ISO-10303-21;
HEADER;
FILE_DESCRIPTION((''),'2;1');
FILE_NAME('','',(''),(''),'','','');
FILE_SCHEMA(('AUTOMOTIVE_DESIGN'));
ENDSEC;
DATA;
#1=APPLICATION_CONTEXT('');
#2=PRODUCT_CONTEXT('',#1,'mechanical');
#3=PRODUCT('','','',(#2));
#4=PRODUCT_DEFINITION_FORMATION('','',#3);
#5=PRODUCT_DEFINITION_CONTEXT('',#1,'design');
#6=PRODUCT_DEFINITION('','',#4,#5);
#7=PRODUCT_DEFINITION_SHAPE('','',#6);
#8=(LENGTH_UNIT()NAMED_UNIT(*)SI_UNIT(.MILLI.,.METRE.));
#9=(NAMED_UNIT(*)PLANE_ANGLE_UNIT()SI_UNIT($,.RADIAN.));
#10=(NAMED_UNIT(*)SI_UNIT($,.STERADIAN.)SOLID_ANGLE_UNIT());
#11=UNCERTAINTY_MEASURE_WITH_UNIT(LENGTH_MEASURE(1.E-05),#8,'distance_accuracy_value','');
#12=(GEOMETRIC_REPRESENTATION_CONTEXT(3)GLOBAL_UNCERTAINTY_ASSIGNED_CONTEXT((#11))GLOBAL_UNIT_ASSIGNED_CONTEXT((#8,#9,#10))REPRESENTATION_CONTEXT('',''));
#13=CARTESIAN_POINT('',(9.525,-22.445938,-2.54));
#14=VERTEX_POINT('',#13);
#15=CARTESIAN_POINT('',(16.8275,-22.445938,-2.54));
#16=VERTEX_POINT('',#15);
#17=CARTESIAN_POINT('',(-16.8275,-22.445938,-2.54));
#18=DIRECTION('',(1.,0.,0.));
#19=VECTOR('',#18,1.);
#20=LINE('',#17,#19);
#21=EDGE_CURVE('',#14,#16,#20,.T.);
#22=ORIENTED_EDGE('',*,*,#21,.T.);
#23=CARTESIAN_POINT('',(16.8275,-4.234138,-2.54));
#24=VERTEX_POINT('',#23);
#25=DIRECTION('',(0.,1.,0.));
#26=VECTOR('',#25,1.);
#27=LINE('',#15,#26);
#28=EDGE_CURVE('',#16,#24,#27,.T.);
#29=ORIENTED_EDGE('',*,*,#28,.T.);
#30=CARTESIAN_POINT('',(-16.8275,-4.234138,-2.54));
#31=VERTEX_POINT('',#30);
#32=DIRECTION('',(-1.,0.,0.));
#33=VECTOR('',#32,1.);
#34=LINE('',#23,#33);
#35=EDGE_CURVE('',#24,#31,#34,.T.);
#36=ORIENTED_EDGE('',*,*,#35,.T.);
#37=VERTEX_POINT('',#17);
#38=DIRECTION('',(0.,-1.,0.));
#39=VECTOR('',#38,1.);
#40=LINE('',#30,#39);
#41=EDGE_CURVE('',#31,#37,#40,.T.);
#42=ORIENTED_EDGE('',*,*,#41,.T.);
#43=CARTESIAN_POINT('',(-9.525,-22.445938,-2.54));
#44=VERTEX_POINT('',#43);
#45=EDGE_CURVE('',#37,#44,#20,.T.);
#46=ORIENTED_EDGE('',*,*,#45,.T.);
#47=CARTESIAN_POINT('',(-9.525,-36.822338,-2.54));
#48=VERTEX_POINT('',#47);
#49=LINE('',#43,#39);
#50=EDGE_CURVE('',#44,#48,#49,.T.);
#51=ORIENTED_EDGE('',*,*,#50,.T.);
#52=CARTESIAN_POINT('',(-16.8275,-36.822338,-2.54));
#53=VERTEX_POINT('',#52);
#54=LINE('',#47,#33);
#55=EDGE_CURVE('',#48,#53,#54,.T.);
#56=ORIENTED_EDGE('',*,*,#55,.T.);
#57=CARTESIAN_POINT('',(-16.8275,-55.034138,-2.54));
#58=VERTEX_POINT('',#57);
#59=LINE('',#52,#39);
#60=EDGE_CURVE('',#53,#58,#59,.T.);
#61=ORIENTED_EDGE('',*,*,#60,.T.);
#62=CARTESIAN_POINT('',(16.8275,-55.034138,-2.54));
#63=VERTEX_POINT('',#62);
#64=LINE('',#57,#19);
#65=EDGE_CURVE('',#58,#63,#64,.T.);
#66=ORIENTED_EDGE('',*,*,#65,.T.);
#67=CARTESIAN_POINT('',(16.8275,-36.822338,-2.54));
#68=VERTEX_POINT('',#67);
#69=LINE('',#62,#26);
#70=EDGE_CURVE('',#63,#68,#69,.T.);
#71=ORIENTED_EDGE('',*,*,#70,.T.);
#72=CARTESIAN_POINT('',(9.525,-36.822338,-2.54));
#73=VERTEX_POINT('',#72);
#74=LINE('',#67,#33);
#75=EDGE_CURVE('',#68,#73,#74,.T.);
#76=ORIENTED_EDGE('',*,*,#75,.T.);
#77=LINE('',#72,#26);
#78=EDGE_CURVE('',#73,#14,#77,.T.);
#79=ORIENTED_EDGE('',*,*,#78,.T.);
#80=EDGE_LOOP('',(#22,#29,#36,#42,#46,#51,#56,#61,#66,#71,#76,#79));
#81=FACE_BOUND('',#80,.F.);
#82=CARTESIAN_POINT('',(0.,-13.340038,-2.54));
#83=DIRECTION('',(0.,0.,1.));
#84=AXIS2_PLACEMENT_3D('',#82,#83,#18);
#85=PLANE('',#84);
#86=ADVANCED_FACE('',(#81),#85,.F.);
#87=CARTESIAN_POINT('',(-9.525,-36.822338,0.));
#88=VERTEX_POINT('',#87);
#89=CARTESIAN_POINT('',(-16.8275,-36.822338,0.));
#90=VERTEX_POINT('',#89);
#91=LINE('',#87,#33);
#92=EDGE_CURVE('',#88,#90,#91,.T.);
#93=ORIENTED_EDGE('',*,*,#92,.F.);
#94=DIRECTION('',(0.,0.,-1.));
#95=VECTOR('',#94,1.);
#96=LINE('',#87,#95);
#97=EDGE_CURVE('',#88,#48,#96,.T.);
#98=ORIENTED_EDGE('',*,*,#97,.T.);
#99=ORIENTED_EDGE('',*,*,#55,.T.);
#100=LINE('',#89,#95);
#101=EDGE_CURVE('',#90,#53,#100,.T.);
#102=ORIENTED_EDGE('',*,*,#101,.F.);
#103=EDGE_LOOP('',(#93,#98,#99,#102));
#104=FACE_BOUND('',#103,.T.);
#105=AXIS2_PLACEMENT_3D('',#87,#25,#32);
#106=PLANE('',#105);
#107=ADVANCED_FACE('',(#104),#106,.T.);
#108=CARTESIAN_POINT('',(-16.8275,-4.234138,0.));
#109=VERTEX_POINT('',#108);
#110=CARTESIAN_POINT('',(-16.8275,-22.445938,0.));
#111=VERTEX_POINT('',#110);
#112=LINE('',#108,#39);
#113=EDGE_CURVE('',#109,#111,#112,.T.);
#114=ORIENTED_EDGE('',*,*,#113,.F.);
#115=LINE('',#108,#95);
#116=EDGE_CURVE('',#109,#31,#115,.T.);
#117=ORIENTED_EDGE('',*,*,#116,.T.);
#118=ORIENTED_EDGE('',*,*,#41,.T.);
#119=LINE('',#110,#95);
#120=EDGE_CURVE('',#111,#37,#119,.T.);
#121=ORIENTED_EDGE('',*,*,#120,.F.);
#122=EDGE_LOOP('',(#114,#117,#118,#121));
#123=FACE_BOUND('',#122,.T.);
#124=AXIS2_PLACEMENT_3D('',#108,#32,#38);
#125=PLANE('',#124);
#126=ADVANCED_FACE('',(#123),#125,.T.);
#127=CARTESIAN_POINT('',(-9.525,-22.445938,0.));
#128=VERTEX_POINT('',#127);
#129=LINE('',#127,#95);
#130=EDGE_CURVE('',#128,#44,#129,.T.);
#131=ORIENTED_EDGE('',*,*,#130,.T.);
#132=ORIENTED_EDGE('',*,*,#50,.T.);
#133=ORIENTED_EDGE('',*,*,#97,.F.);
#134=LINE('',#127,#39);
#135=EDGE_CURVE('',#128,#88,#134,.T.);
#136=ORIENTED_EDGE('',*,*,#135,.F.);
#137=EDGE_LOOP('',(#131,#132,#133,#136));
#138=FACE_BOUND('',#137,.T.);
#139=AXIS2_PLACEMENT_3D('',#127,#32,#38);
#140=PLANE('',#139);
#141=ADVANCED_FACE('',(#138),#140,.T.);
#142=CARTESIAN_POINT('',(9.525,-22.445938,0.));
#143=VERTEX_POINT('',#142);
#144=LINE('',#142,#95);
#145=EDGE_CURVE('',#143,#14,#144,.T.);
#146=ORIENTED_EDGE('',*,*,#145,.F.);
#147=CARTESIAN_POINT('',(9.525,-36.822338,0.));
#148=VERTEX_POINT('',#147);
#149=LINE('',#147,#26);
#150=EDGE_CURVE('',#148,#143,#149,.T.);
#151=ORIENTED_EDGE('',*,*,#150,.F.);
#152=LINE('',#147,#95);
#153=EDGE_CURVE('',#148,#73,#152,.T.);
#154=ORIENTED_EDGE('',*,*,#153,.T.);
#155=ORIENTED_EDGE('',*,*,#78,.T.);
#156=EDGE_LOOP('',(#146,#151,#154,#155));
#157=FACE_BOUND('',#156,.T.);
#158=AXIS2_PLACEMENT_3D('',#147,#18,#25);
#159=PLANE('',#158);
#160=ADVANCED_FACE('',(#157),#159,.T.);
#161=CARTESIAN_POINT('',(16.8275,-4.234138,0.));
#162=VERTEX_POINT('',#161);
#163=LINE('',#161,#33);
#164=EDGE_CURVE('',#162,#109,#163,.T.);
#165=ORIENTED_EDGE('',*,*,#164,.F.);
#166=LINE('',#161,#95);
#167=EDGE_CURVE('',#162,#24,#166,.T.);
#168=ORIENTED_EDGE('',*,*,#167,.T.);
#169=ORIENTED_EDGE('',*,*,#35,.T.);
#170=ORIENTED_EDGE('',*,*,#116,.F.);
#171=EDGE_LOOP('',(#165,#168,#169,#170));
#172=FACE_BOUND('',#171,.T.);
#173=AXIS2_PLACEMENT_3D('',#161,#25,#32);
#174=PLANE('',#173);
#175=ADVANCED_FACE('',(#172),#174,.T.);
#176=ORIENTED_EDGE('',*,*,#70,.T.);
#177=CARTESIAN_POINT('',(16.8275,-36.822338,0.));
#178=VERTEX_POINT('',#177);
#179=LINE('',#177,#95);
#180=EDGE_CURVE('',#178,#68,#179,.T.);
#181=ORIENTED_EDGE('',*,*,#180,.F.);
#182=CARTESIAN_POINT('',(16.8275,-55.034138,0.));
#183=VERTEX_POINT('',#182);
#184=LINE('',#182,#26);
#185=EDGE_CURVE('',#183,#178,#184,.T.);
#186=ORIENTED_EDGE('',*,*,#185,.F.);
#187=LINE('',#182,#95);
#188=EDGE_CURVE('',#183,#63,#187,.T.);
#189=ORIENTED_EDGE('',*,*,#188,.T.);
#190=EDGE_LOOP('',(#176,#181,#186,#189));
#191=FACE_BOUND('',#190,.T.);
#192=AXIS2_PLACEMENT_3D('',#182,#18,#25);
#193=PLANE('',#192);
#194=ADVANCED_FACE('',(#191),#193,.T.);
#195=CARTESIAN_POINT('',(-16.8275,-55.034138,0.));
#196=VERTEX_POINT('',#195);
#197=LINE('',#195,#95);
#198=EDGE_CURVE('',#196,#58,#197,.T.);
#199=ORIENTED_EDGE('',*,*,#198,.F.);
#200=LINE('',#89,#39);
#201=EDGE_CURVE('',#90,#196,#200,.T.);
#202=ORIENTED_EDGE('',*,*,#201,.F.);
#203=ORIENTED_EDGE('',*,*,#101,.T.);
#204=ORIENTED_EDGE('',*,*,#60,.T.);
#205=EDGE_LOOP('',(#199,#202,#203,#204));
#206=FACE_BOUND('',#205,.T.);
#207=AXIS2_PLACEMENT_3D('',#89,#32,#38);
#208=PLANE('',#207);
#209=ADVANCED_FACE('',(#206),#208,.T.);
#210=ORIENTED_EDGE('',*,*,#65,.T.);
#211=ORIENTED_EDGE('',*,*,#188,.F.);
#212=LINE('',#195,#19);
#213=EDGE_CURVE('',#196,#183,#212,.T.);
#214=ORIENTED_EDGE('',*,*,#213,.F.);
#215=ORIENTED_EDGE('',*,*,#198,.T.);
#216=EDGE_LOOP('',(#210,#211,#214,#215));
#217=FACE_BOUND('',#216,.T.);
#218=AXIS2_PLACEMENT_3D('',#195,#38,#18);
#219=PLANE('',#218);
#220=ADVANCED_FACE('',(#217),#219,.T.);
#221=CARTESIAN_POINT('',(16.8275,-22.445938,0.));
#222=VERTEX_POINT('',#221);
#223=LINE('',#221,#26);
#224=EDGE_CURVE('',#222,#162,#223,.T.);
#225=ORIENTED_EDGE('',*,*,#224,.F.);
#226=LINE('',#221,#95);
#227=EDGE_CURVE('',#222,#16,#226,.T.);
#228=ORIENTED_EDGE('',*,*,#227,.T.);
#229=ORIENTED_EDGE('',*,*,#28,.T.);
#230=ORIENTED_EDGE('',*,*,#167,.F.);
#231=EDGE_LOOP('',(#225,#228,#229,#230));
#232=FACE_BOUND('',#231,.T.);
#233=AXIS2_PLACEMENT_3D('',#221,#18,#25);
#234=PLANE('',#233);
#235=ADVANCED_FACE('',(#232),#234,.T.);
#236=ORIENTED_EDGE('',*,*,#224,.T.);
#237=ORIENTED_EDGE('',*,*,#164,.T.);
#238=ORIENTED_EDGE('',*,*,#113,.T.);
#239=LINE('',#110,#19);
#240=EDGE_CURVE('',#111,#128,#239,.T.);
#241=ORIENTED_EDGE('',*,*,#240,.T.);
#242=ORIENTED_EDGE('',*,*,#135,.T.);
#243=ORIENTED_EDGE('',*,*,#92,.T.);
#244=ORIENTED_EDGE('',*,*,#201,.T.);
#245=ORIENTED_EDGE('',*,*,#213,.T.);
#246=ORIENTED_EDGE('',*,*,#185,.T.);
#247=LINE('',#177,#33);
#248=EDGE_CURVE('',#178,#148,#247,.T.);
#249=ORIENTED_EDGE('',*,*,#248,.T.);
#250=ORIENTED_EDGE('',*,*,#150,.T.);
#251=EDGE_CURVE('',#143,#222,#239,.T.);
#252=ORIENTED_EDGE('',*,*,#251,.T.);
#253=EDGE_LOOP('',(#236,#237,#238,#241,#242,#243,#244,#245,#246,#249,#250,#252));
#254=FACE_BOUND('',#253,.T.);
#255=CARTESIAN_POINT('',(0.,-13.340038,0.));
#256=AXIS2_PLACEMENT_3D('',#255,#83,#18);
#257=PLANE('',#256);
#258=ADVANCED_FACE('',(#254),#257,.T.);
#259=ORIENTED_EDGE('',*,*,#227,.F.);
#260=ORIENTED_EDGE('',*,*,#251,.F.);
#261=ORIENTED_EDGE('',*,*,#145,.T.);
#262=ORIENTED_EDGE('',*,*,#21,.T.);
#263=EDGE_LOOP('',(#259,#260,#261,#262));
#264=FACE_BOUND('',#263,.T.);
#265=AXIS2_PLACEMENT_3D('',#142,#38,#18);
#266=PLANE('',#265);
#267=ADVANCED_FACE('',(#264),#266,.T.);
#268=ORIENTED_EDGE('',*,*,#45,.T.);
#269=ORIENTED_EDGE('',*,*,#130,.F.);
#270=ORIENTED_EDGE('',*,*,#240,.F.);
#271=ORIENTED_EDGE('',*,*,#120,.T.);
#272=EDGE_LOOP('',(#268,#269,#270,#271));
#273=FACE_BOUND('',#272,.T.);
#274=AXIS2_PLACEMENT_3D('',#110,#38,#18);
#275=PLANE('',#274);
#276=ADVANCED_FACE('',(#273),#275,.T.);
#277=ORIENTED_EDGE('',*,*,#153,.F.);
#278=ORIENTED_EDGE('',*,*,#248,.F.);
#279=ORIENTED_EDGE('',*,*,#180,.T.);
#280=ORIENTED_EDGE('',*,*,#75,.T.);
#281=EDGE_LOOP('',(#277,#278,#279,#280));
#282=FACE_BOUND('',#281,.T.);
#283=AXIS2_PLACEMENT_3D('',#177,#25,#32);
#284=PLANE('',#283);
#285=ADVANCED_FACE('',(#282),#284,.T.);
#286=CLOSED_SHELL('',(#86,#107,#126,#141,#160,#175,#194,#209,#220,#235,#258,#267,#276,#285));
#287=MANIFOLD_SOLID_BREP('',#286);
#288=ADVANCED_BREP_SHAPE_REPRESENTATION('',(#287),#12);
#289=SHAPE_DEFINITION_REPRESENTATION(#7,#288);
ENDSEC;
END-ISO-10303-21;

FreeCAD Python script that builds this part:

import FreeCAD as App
import Part
import Sketcher
from FreeCAD import Vector
Q = App.Units.Quantity

doc = App.newDocument("Part")
params = doc.addObject("Spreadsheet::Sheet", "Params")
for row, (alias, value) in enumerate([
    ("sketch1_width", "1.325 in"),
    ("sketch1_height", "0.566 in"),
    ("sketch1_height2", "0.717 in"),
    ("pad1_length", "0.1 in"),
], start=1):
    params.set(f"A{row}", alias)
    params.set(f"B{row}", "=" + value)
    params.setAlias(f"B{row}", alias)

body = doc.addObject("PartDesign::Body", "Body")

sketch1 = doc.addObject("Sketcher::SketchObject", "Sketch")
body.addObject(sketch1)
sketch1.AttachmentSupport = (doc.XY_Plane, [""])
sketch1.MapMode = "FlatFace"
sketch1.addGeometry(Part.LineSegment(Vector(-17, -22, 0), Vector(-10, -22, 0)), False)
sketch1.addGeometry(Part.LineSegment(Vector(-10, -22, 0), Vector(-10, -37, 0)), False)
sketch1.addGeometry(Part.LineSegment(Vector(-10, -37, 0), Vector(-17, -37, 0)), False)
sketch1.addGeometry(Part.LineSegment(Vector(-17, -37, 0), Vector(-17, -55, 0)), False)
sketch1.addGeometry(Part.LineSegment(Vector(-17, -55, 0), Vector(17, -55, 0)), False)
sketch1.addGeometry(Part.LineSegment(Vector(17, -55, 0), Vector(17, -37, 0)), False)
sketch1.addGeometry(Part.LineSegment(Vector(17, -37, 0), Vector(10, -37, 0)), False)
sketch1.addGeometry(Part.LineSegment(Vector(10, -37, 0), Vector(10, -22, 0)), False)
sketch1.addGeometry(Part.LineSegment(Vector(10, -22, 0), Vector(17, -22, 0)), False)
sketch1.addGeometry(Part.LineSegment(Vector(17, -22, 0), Vector(17, -4, 0)), False)
sketch1.addGeometry(Part.LineSegment(Vector(17, -4, 0), Vector(-17, -4, 0)), False)
sketch1.addGeometry(Part.LineSegment(Vector(-17, -4, 0), Vector(-17, -22, 0)), False)
sketch1.addConstraint(Sketcher.Constraint("Coincident", 0, 2, 1, 1))
sketch1.addConstraint(Sketcher.Constraint("Coincident", 1, 2, 2, 1))
sketch1.addConstraint(Sketcher.Constraint("Coincident", 2, 2, 3, 1))
sketch1.addConstraint(Sketcher.Constraint("Coincident", 3, 2, 4, 1))
sketch1.addConstraint(Sketcher.Constraint("Coincident", 4, 2, 5, 1))
sketch1.addConstraint(Sketcher.Constraint("Coincident", 5, 2, 6, 1))
sketch1.addConstraint(Sketcher.Constraint("Coincident", 6, 2, 7, 1))
sketch1.addConstraint(Sketcher.Constraint("Coincident", 7, 2, 8, 1))
sketch1.addConstraint(Sketcher.Constraint("Coincident", 8, 2, 9, 1))
sketch1.addConstraint(Sketcher.Constraint("Coincident", 9, 2, 10, 1))
sketch1.addConstraint(Sketcher.Constraint("Coincident", 10, 2, 11, 1))
sketch1.addConstraint(Sketcher.Constraint("Coincident", 11, 2, 0, 1))
sketch1.addConstraint(Sketcher.Constraint("Horizontal", 0))
sketch1.addConstraint(Sketcher.Constraint("Vertical", 1))
sketch1.addConstraint(Sketcher.Constraint("Horizontal", 2))
sketch1.addConstraint(Sketcher.Constraint("Vertical", 3))
sketch1.addConstraint(Sketcher.Constraint("Horizontal", 4))
sketch1.addConstraint(Sketcher.Constraint("Vertical", 5))
sketch1.addConstraint(Sketcher.Constraint("Horizontal", 6))
sketch1.addConstraint(Sketcher.Constraint("Vertical", 7))
sketch1.addConstraint(Sketcher.Constraint("Horizontal", 8))
sketch1.addConstraint(Sketcher.Constraint("Vertical", 9))
sketch1.addConstraint(Sketcher.Constraint("Horizontal", 10))
sketch1.addConstraint(Sketcher.Constraint("Vertical", 11))
sketch1.addConstraint(Sketcher.Constraint("Symmetric", 2, 2, 5, 2, -2))
sketch1.addConstraint(Sketcher.Constraint("Symmetric", 0, 2, 7, 2, -2))
sketch1.addConstraint(Sketcher.Constraint("Vertical", 5, 2, 8, 2))
sketch1.addConstraint(Sketcher.Constraint("Vertical", 3, 2, 10, 2))
sketch1.addConstraint(Sketcher.Constraint("Equal", 5, 9))
sketch1.addConstraint(Sketcher.Constraint("DistanceX", 4, 1, 4, 2, Q("1.325 in")))
sketch1.addConstraint(Sketcher.Constraint("DistanceY", 1, 2, 1, 1, Q("0.566 in")))
sketch1.addConstraint(Sketcher.Constraint("DistanceY", 3, 2, 3, 1, Q("0.717 in")))
sketch1.addConstraint(Sketcher.Constraint("DistanceX", 1, 2, 6, 2, Q("0.75 in")))
sketch1.addConstraint(Sketcher.Constraint("DistanceY", 0, 2, -1, 1, Q("22.445938 mm")))
sketch1.setExpression("Constraints[29]", "Params.sketch1_width")
sketch1.setExpression("Constraints[30]", "Params.sketch1_height")
sketch1.setExpression("Constraints[31]", "Params.sketch1_height2")
pad1 = doc.addObject("PartDesign::Pad", "Pad")
body.addObject(pad1)
pad1.Profile = sketch1
pad1.setExpression("Length", "Params.pad1_length")
pad1.Reversed = True

doc.recompute()
